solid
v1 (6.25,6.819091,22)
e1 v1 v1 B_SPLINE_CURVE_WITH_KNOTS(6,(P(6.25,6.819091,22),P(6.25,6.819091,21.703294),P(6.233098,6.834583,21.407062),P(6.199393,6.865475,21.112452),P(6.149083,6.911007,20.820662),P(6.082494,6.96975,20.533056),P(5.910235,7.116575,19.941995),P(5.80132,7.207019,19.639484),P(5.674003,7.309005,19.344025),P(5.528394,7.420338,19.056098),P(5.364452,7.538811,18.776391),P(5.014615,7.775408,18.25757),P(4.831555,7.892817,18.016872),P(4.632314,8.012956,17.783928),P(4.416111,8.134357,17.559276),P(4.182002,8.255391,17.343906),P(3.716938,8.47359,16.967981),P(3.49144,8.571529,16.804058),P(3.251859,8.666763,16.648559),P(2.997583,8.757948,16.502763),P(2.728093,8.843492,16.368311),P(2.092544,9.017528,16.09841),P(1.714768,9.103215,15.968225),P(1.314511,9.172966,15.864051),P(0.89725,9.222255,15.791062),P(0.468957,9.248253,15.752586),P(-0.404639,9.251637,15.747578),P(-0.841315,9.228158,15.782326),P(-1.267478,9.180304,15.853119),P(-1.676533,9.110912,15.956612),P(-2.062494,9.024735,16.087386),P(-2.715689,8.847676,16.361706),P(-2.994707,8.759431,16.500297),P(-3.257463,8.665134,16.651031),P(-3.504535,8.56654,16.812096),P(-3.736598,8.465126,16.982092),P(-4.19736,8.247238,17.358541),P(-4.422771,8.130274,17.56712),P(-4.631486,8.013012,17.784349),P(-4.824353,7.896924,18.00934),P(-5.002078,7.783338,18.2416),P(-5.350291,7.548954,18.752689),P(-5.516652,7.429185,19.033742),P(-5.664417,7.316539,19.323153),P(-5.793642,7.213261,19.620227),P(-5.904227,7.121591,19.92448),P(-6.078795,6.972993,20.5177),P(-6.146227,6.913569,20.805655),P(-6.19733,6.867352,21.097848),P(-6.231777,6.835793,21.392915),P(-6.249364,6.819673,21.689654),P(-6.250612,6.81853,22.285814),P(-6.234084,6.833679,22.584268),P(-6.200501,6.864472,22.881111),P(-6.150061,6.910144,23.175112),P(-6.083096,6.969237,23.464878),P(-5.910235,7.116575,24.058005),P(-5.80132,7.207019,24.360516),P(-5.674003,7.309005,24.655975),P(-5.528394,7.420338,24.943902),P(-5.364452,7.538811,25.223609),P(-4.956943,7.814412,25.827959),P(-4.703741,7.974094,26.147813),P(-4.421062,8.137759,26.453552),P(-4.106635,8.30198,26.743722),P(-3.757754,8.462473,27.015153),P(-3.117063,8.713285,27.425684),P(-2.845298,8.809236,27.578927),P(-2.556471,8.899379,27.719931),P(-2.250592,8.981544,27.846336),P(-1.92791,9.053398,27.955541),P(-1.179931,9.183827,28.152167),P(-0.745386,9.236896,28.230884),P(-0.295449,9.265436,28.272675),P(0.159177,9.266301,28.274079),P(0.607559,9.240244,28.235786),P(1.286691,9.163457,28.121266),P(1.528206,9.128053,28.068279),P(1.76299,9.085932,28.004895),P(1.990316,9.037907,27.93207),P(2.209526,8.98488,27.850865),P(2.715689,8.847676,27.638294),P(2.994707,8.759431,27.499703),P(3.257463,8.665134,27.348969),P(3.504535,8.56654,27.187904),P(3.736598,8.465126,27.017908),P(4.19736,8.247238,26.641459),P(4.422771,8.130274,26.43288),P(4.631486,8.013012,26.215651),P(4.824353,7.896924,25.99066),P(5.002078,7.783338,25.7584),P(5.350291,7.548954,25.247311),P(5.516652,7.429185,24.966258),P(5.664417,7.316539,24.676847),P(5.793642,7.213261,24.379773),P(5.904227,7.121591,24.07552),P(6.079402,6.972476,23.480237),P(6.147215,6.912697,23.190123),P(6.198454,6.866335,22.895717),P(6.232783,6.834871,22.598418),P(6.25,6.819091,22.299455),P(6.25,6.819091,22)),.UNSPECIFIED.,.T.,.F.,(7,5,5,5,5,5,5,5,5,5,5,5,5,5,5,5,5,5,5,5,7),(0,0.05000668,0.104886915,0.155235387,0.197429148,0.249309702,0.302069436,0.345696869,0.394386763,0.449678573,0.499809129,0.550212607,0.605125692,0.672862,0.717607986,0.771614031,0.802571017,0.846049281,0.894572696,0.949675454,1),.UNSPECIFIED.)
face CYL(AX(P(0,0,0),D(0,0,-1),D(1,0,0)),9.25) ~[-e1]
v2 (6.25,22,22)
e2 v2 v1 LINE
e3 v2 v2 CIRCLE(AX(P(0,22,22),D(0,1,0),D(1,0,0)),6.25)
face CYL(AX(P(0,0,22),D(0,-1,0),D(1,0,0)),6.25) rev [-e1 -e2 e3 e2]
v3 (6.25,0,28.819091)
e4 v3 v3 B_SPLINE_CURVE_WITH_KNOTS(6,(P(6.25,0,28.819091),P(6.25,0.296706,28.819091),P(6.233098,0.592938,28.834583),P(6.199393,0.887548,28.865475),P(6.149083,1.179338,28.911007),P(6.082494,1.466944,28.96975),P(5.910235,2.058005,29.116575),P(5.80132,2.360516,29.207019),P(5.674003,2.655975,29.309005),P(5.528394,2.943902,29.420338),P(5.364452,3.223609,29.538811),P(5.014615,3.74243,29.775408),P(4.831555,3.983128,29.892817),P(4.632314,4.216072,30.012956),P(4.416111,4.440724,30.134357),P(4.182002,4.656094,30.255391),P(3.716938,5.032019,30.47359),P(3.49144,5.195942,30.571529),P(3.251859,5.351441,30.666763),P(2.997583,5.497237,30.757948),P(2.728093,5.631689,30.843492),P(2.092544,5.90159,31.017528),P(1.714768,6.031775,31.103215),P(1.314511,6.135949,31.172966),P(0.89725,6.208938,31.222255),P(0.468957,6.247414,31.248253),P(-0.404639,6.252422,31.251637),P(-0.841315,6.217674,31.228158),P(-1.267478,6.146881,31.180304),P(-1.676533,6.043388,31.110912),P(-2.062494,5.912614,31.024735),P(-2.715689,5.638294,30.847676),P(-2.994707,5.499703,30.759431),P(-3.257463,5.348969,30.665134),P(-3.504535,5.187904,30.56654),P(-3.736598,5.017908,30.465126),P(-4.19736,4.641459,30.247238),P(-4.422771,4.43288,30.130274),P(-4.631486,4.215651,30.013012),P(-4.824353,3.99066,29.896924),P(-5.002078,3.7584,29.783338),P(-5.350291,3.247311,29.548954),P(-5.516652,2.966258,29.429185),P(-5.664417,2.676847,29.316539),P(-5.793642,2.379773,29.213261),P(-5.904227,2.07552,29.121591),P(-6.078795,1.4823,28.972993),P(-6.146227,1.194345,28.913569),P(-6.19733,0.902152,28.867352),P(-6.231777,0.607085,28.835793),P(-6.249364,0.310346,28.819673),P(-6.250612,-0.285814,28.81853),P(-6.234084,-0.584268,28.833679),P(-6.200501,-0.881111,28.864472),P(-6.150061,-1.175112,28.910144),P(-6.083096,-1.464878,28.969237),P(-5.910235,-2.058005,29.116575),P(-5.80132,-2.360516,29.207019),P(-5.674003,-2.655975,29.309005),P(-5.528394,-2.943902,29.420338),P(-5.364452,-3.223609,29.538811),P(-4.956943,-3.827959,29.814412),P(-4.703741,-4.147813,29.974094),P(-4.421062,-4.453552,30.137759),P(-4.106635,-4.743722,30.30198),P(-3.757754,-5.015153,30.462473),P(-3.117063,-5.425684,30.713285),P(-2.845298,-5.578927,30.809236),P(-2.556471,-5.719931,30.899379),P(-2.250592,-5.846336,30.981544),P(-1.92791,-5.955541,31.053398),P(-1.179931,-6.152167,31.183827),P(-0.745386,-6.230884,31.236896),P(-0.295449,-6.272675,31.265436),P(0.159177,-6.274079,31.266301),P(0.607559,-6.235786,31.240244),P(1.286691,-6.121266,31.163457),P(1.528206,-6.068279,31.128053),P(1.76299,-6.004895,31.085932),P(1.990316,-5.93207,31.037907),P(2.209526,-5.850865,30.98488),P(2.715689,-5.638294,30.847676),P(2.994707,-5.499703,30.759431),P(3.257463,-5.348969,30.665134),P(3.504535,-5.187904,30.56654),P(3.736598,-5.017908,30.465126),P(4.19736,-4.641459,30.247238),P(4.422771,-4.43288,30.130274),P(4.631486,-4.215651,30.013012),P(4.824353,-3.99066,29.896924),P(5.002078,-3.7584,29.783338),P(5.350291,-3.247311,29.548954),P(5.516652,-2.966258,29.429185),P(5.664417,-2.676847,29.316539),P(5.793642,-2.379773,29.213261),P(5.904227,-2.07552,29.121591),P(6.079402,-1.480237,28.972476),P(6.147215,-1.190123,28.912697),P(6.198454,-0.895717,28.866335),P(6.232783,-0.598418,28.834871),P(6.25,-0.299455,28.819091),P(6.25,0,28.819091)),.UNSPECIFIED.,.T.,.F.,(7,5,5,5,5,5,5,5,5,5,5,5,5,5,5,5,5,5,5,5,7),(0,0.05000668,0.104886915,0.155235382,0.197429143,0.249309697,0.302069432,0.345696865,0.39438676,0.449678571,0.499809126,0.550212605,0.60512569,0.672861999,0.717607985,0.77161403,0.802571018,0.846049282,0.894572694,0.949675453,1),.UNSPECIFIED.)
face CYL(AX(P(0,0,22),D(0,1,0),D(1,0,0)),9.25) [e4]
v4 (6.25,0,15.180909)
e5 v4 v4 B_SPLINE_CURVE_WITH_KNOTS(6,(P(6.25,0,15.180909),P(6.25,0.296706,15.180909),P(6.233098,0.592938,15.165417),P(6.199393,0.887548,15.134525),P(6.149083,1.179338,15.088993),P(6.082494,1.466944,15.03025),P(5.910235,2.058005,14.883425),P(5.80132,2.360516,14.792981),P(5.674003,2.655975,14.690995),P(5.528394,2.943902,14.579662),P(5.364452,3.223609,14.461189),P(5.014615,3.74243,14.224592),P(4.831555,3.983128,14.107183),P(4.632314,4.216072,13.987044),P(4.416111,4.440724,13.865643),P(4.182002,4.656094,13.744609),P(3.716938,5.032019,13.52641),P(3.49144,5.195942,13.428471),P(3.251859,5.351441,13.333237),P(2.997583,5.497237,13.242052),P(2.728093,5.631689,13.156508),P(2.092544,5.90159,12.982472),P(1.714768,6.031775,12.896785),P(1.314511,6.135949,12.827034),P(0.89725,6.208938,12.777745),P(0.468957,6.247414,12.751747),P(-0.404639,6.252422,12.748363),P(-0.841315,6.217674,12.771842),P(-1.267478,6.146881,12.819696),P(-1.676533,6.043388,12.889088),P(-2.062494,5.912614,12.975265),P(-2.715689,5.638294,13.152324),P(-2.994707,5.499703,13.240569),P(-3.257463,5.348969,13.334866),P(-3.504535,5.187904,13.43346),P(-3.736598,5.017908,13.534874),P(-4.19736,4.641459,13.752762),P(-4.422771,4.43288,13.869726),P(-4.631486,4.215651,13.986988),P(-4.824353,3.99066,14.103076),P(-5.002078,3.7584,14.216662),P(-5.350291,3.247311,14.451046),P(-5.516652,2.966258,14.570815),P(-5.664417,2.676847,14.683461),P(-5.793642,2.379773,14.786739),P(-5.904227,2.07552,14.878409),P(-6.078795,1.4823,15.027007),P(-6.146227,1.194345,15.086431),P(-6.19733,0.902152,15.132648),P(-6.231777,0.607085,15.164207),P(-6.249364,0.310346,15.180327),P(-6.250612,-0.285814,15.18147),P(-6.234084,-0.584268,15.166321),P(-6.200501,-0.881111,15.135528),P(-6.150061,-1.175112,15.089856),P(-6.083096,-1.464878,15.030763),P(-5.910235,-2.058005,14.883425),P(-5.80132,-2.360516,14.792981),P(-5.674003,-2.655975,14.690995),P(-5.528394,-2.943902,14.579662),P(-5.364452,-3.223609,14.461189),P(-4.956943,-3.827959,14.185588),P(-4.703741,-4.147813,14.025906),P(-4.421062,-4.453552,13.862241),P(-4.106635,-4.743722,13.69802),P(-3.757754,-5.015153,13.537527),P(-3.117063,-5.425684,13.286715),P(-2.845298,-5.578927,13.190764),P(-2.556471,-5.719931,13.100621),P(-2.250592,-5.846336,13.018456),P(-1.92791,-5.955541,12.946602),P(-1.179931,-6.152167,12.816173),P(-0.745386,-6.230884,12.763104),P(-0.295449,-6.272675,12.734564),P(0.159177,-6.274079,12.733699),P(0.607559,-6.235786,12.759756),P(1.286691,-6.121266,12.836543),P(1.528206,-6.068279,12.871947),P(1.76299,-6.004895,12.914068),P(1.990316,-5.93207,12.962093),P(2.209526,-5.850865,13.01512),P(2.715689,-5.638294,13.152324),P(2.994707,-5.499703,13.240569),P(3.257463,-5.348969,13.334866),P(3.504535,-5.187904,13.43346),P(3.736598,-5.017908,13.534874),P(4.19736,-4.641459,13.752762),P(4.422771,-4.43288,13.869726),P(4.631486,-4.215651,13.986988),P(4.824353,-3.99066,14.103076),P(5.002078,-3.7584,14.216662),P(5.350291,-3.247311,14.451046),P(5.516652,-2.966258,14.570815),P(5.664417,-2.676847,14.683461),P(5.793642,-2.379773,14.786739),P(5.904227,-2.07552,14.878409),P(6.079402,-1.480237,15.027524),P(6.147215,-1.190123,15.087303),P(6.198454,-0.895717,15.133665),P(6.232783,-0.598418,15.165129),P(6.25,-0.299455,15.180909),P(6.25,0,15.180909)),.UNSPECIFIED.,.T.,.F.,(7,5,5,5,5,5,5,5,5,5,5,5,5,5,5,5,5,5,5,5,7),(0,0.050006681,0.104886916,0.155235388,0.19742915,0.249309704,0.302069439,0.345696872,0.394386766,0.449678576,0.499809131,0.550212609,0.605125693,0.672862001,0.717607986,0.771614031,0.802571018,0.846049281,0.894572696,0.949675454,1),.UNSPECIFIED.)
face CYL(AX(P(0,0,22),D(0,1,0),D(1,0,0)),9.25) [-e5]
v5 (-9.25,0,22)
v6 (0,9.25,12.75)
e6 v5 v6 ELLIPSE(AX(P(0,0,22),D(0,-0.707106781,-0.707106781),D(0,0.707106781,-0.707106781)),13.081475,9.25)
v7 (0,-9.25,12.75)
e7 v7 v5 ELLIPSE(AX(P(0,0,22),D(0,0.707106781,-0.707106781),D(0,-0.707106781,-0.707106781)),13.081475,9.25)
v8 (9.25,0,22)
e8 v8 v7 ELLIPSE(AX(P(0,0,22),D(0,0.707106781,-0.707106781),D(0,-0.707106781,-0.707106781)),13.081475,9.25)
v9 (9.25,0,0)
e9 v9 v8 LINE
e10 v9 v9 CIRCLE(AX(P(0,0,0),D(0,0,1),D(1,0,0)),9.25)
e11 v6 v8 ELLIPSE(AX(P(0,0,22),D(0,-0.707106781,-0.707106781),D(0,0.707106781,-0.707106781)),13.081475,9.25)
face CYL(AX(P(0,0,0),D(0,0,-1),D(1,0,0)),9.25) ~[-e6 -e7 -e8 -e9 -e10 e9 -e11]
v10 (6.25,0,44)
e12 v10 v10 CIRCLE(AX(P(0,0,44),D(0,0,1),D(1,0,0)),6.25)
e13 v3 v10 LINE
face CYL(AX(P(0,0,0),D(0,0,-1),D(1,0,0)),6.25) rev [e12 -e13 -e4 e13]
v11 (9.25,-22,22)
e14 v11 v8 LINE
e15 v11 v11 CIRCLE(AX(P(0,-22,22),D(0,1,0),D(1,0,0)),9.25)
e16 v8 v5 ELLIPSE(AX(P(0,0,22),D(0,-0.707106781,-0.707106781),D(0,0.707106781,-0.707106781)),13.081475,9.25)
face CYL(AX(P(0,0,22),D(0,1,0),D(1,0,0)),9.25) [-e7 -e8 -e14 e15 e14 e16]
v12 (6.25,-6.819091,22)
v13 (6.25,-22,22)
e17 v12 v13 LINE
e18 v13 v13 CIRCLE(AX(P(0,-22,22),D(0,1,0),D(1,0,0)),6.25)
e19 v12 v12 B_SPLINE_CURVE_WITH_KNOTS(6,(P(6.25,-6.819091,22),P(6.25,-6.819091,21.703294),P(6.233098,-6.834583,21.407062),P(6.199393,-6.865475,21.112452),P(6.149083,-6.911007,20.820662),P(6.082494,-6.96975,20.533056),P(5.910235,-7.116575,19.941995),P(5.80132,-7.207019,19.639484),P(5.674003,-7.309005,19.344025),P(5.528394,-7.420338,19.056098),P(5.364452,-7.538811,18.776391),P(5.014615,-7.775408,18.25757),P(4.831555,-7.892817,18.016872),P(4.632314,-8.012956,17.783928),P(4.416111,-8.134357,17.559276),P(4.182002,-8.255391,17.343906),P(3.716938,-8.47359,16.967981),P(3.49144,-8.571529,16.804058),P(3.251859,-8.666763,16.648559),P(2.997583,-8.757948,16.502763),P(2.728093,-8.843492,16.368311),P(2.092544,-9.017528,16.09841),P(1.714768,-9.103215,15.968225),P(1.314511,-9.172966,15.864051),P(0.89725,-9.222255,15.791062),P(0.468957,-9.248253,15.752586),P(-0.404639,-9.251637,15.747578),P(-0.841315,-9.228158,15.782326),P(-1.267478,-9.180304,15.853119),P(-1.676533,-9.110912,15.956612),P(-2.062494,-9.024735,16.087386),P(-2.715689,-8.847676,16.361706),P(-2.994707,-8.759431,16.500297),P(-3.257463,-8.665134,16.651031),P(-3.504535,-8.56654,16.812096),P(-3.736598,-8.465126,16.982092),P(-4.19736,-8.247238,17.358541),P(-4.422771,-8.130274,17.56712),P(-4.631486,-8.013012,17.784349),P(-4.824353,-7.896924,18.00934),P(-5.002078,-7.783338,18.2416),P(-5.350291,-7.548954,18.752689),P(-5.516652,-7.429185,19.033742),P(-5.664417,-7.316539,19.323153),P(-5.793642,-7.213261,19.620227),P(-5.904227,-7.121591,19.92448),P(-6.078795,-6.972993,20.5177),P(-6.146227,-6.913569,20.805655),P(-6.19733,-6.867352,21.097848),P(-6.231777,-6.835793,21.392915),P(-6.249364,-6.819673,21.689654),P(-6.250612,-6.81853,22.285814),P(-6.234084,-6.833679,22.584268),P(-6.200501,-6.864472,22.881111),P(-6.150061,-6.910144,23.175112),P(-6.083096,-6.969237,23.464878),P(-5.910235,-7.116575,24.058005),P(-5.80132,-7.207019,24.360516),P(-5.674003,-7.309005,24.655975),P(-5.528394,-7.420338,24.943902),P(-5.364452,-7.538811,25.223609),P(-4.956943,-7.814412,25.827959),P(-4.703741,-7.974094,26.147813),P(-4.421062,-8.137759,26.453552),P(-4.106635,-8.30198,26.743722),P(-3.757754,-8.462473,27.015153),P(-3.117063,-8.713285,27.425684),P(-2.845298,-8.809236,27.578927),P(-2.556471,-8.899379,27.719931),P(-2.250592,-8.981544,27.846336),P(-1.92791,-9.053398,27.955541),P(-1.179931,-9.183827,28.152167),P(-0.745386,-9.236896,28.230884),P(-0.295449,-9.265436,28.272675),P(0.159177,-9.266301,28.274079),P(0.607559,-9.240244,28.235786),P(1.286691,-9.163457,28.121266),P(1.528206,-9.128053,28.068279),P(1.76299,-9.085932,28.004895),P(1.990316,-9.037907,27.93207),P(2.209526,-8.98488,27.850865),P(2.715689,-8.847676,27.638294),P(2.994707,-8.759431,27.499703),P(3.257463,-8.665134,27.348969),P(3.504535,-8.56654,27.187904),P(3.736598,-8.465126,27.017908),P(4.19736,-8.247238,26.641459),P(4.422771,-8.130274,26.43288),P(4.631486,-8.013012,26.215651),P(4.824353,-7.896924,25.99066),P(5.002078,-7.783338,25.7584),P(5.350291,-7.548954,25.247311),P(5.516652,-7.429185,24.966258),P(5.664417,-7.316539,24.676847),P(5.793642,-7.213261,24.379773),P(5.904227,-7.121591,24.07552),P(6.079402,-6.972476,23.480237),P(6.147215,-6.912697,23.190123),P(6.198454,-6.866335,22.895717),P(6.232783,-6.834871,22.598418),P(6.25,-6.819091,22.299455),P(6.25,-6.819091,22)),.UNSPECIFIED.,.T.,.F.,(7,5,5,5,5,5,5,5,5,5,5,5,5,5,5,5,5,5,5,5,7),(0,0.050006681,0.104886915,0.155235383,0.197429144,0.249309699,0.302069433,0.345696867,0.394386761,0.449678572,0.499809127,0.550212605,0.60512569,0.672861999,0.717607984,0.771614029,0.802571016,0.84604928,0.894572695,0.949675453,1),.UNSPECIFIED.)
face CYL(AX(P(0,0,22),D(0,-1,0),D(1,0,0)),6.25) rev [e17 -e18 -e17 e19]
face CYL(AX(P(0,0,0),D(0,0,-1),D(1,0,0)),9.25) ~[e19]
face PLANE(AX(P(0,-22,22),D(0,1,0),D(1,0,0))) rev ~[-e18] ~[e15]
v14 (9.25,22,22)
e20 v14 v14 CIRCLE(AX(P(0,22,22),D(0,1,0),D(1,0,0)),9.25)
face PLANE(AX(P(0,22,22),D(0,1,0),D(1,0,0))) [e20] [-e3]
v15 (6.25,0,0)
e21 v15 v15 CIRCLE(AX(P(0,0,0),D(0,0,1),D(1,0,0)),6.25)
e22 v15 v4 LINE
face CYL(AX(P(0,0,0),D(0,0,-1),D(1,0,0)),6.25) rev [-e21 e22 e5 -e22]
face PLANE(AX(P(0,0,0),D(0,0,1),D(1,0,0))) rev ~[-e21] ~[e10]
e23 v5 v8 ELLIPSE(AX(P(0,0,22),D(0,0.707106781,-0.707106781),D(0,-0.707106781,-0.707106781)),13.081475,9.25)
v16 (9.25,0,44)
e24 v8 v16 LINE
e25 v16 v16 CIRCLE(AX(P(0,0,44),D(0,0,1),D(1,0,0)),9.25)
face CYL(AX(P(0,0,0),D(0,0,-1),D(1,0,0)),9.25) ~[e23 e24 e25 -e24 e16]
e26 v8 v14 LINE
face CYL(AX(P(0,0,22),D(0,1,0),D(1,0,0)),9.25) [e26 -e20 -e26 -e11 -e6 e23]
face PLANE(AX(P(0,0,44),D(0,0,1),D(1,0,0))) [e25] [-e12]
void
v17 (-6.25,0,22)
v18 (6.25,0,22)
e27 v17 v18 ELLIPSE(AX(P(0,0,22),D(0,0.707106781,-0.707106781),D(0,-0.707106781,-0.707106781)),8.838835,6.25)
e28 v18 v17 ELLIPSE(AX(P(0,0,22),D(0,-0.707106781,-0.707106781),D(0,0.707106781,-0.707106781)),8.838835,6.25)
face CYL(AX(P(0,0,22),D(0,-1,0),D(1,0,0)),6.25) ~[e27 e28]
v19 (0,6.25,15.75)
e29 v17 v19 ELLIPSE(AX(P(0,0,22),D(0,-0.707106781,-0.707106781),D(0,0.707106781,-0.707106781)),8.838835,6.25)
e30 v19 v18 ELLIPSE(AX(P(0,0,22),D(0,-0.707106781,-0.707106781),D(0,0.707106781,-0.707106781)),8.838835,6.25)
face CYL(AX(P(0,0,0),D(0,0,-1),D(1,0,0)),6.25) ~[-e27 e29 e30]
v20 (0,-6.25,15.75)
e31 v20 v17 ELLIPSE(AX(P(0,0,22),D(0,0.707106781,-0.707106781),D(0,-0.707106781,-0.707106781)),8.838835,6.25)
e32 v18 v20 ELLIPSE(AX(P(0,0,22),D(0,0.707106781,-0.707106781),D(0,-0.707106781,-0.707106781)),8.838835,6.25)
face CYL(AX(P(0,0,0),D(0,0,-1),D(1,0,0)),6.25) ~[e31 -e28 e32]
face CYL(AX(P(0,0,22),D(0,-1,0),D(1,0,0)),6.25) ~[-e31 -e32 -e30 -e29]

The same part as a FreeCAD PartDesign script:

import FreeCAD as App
import Part
import Sketcher

V = App.Vector
Q = App.Units.Quantity

doc = App.newDocument("Part")
body = doc.addObject("PartDesign::Body", "Body")

# Sketch on XY plane
sketch1 = body.newObject("Sketcher::SketchObject", "Sketch")
sketch1.AttachmentSupport = (doc.getObject("XY_Plane"), [""])
sketch1.MapMode = "FlatFace"
sketch1.addGeometry([
    Part.Circle(V(0, 0, 0), V(0, 0, 1), 9.25),
    Part.Circle(V(0, 0, 0), V(0, 0, 1), 6.25),
], False)
sketch1.addConstraint([
    Sketcher.Constraint("Coincident", 0, 3, -1, 1),
    Sketcher.Constraint("Coincident", 1, 3, -1, 1),
    Sketcher.Constraint("Diameter", 0, Q("18.5 mm")),
    Sketcher.Constraint("Diameter", 1, Q("12.5 mm")),
])
pad1 = body.newObject("PartDesign::Pad", "Pad")
pad1.Profile = sketch1
pad1.Length = 44

# Sketch on XZ plane
sketch2 = body.newObject("Sketcher::SketchObject", "Sketch001")
sketch2.AttachmentSupport = (doc.getObject("XZ_Plane"), [""])
sketch2.MapMode = "FlatFace"
sketch2.addGeometry([
    Part.Circle(V(0, 22, 0), V(0, 0, 1), 9.25),
    Part.Circle(V(0, 22, 0), V(0, 0, 1), 6.25),
], False)
sketch2.addConstraint([
    Sketcher.Constraint("Coincident", 1, 3, 0, 3),
    Sketcher.Constraint("PointOnObject", 0, 3, -2),
    Sketcher.Constraint("Diameter", 0, Q("18.5 mm")),
    Sketcher.Constraint("Diameter", 1, Q("12.5 mm")),
    Sketcher.Constraint("DistanceY", -1, 1, 0, 3, Q("22 mm")),
])
pad2 = body.newObject("PartDesign::Pad", "Pad001")
pad2.Profile = sketch2
pad2.Length = 44
pad2.Midplane = True

doc.recompute()
